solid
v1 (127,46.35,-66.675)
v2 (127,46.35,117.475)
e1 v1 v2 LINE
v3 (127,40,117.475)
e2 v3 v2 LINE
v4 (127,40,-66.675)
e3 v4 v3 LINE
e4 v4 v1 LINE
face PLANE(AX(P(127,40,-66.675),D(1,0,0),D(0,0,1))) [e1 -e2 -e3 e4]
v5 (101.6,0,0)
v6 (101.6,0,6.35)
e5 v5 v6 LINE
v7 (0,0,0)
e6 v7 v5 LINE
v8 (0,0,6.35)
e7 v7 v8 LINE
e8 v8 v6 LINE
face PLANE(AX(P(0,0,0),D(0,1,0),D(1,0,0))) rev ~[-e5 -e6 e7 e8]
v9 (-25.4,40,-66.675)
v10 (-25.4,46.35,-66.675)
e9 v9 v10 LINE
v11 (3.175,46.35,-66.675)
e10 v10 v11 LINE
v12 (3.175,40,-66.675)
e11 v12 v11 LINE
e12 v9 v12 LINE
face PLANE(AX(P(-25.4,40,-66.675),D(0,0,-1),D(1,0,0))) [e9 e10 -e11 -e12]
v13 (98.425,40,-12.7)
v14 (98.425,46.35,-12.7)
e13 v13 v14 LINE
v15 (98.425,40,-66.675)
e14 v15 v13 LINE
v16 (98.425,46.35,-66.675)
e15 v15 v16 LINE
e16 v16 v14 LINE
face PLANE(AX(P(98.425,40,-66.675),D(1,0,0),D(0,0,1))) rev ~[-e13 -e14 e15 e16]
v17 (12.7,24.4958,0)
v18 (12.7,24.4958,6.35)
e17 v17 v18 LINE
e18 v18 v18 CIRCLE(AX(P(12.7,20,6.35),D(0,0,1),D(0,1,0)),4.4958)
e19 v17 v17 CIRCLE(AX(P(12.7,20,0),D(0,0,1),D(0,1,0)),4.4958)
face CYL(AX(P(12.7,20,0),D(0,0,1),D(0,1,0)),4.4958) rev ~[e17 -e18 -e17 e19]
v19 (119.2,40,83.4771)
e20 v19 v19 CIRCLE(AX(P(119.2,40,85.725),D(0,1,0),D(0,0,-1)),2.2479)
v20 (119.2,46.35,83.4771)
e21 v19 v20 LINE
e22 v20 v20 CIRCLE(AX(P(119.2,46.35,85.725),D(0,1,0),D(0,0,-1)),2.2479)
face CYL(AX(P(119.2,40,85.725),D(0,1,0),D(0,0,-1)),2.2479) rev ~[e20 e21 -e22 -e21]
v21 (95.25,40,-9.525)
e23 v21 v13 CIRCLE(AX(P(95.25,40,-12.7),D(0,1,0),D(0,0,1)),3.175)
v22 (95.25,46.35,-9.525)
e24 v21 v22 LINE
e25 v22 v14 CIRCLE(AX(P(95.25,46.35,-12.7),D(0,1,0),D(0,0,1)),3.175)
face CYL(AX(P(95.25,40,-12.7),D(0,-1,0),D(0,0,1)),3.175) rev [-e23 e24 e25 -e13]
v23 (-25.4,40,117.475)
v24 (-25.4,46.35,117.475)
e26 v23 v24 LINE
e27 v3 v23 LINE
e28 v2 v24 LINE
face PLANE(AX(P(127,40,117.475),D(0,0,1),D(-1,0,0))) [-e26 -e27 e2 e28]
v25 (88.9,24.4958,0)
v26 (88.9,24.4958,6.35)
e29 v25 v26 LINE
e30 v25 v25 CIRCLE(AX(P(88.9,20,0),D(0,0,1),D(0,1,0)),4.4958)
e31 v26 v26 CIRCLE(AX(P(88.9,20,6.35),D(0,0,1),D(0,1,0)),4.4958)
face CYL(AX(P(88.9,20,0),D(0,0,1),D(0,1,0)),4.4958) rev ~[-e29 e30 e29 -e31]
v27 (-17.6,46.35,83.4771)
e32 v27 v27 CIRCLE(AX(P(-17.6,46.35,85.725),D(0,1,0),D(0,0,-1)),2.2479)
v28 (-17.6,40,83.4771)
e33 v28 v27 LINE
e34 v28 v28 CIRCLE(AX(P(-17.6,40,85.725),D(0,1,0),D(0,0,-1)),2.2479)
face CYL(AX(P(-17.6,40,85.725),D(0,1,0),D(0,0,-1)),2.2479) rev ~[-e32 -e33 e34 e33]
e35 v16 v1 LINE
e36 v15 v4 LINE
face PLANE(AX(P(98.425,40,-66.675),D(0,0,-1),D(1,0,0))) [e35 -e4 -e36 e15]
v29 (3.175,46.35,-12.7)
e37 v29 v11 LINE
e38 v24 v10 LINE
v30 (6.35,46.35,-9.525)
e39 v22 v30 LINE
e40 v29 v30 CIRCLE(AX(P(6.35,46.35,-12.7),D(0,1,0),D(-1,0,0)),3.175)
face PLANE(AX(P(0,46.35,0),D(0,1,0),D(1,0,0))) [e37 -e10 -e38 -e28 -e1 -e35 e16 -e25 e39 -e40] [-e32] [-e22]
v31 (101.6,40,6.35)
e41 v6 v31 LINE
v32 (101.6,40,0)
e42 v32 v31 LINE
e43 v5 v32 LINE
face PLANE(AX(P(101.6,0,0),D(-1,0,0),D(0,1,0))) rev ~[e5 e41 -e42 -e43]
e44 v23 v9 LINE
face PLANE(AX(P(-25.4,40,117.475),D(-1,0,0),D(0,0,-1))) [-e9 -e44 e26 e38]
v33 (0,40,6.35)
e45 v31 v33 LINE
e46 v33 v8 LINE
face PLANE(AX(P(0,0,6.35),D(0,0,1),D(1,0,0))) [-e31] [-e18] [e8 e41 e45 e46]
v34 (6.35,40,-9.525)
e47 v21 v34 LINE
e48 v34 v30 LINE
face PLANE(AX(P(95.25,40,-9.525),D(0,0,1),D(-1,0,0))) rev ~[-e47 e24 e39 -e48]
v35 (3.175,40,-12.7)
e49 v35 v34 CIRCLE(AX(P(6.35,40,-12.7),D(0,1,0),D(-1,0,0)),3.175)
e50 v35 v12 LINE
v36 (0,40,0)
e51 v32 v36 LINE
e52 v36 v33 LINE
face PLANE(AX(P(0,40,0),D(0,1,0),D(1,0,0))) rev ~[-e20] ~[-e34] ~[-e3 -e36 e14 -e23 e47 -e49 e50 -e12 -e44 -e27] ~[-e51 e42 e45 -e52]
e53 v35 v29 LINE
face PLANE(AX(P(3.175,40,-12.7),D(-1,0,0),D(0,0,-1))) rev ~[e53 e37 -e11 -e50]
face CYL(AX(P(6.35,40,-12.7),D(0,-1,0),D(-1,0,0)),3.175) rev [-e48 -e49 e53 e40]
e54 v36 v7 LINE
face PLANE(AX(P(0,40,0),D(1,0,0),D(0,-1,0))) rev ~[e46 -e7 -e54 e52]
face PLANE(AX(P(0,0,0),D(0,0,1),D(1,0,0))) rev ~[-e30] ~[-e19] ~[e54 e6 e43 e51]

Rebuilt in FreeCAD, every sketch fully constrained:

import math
import FreeCAD as App
import Part
import Sketcher

V = App.Vector
Q = App.Units.Quantity


def add_polygon(sketch, points):
    """Adds a closed chain of lines whose ends are joined by coincident constraints."""
    first, n = sketch.GeometryCount, len(points)
    for a, b in zip(points, points[1:] + points[:1]):
        sketch.addGeometry(Part.LineSegment(App.Vector(*a, 0), App.Vector(*b, 0)), False)
    for i in range(n):
        sketch.addConstraint(Sketcher.Constraint("Coincident", first + i, 2, first + (i + 1) % n, 1))

doc = App.newDocument("Part")
body = doc.addObject("PartDesign::Body", "Body")

# Sketch on XY plane
sketch1 = body.newObject("Sketcher::SketchObject", "Sketch")
sketch1.AttachmentSupport = (doc.getObject("XY_Plane"), [""])
sketch1.MapMode = "FlatFace"
add_polygon(sketch1, [(0, 40), (0, 0), (101.6, 0), (101.6, 40)])  # lines 0-3
sketch1.addConstraint(Sketcher.Constraint("Vertical", 0))
sketch1.addConstraint(Sketcher.Constraint("Horizontal", 1))
sketch1.addConstraint(Sketcher.Constraint("Vertical", 2))
sketch1.addConstraint(Sketcher.Constraint("Horizontal", 3))
sketch1.addConstraint(Sketcher.Constraint("Coincident", 0, 2, -1, 1))
sketch1.addConstraint(Sketcher.Constraint("DistanceX", 1, 1, 1, 2, Q("4 in")))
sketch1.addConstraint(Sketcher.Constraint("DistanceY", 0, 2, 0, 1, Q("1.5748 in")))
pad1 = body.newObject("PartDesign::Pad", "Pad")
pad1.Profile = sketch1
pad1.Length = Q("0.25 in")

# Sketch on XZ plane
sketch2 = body.newObject("Sketcher::SketchObject", "Sketch001")
sketch2.AttachmentSupport = (doc.getObject("XZ_Plane"), [""])
sketch2.MapMode = "FlatFace"
sketch2.AttachmentOffset = App.Placement(V(0, 0, -1.5748031 * 25.4), App.Rotation())
sketch2.addGeometry(Part.LineSegment(V(3.175, -66.675, 0), V(-25.4, -66.675, 0)), False)
sketch2.addGeometry(Part.LineSegment(V(-25.4, -66.675, 0), V(-25.4, 117.475, 0)), False)
sketch2.addGeometry(Part.LineSegment(V(-25.4, 117.475, 0), V(127, 117.475, 0)), False)
sketch2.addGeometry(Part.LineSegment(V(127, 117.475, 0), V(127, -66.675, 0)), False)
sketch2.addGeometry(Part.LineSegment(V(127, -66.675, 0), V(98.425, -66.675, 0)), False)
sketch2.addGeometry(Part.LineSegment(V(98.425, -66.675, 0), V(98.425, -12.7, 0)), False)
sketch2.addGeometry(Part.ArcOfCircle(Part.Circle(V(95.25, -12.7, 0), V(0, 0, 1), 3.175), math.radians(0), math.radians(90)), False)
sketch2.addGeometry(Part.LineSegment(V(95.25, -9.525, 0), V(6.35, -9.525, 0)), False)
sketch2.addGeometry(Part.ArcOfCircle(Part.Circle(V(6.35, -12.7, 0), V(0, 0, 1), 3.175), math.radians(90), math.radians(180)), False)
sketch2.addGeometry(Part.LineSegment(V(3.175, -12.7, 0), V(3.175, -66.675, 0)), False)
sketch2.addConstraint(Sketcher.Constraint("Coincident", 0, 2, 1, 1))
sketch2.addConstraint(Sketcher.Constraint("Coincident", 1, 2, 2, 1))
sketch2.addConstraint(Sketcher.Constraint("Coincident", 2, 2, 3, 1))
sketch2.addConstraint(Sketcher.Constraint("Coincident", 3, 2, 4, 1))
sketch2.addConstraint(Sketcher.Constraint("Coincident", 4, 2, 5, 1))
sketch2.addConstraint(Sketcher.Constraint("Tangent", 5, 2, 6, 1))
sketch2.addConstraint(Sketcher.Constraint("Tangent", 6, 2, 7, 1))
sketch2.addConstraint(Sketcher.Constraint("Tangent", 7, 2, 8, 1))
sketch2.addConstraint(Sketcher.Constraint("Tangent", 8, 2, 9, 1))
sketch2.addConstraint(Sketcher.Constraint("Coincident", 9, 2, 0, 1))
sketch2.addConstraint(Sketcher.Constraint("Horizontal", 0))
sketch2.addConstraint(Sketcher.Constraint("Vertical", 1))
sketch2.addConstraint(Sketcher.Constraint("Horizontal", 2))
sketch2.addConstraint(Sketcher.Constraint("Vertical", 3))
sketch2.addConstraint(Sketcher.Constraint("Horizontal", 4))
sketch2.addConstraint(Sketcher.Constraint("Vertical", 5))
sketch2.addConstraint(Sketcher.Constraint("Horizontal", 7))
sketch2.addConstraint(Sketcher.Constraint("Vertical", 9))
sketch2.addConstraint(Sketcher.Constraint("Equal", 6, 8))
sketch2.addConstraint(Sketcher.Constraint("Horizontal", 0, 2, 3, 2))
sketch2.addConstraint(Sketcher.Constraint("Equal", 0, 4))
sketch2.addConstraint(Sketcher.Constraint("DistanceX", 2, 1, 2, 2, Q("6 in")))
sketch2.addConstraint(Sketcher.Constraint("Radius", 6, Q("0.125 in")))
sketch2.addConstraint(Sketcher.Constraint("DistanceY", 1, 1, 1, 2, Q("7.25 in")))
sketch2.addConstraint(Sketcher.Constraint("DistanceX", -1, 1, 6, 3, Q("3.75 in")))
sketch2.addConstraint(Sketcher.Constraint("DistanceY", 4, 2, 6, 2, Q("2.25 in")))
sketch2.addConstraint(Sketcher.Constraint("DistanceX", 9, 2, 4, 2, Q("3.75 in")))
sketch2.addConstraint(Sketcher.Constraint("DistanceY", 6, 2, -1, 1, Q("0.375 in")))
pad2 = body.newObject("PartDesign::Pad", "Pad001")
pad2.Profile = sketch2
pad2.Length = Q("0.25 in")
pad2.Reversed = True

# Sketch on XY plane
sketch3 = body.newObject("Sketcher::SketchObject", "Sketch002")
sketch3.AttachmentSupport = (doc.getObject("XY_Plane"), [""])
sketch3.MapMode = "FlatFace"
sketch3.addGeometry(Part.Circle(V(88.9, 20, 0), V(0, 0, 1), 4.4958), False)
sketch3.addGeometry(Part.Circle(V(12.7, 20, 0), V(0, 0, 1), 4.4958), False)
sketch3.addConstraint(Sketcher.Constraint("Equal", 0, 1))
sketch3.addConstraint(Sketcher.Constraint("Horizontal", 0, 3, 1, 3))
sketch3.addConstraint(Sketcher.Constraint("Diameter", 0, Q("0.354 in")))
sketch3.addConstraint(Sketcher.Constraint("DistanceX", 1, 3, 0, 3, Q("3 in")))
sketch3.addConstraint(Sketcher.Constraint("DistanceX", -1, 1, 0, 3, Q("3.5 in")))
sketch3.addConstraint(Sketcher.Constraint("DistanceY", -1, 1, 0, 3, Q("0.7874 in")))
doc.recompute()
hole = body.newObject("PartDesign::Hole", "Hole")
hole.Profile = sketch3
hole.ThreadType = "None"
hole.Diameter = Q("0.354 in")
hole.DepthType = "ThroughAll"
hole.Reversed = True

# Sketch on XZ plane
sketch4 = body.newObject("Sketcher::SketchObject", "Sketch003")
sketch4.AttachmentSupport = (doc.getObject("XZ_Plane"), [""])
sketch4.MapMode = "FlatFace"
sketch4.AttachmentOffset = App.Placement(V(0, 0, -1.5748031 * 25.4), App.Rotation())
sketch4.addGeometry(Part.Circle(V(-17.6, 85.725, 0), V(0, 0, 1), 2.2479), False)
sketch4.addGeometry(Part.Circle(V(119.2, 85.725, 0), V(0, 0, 1), 2.2479), False)
sketch4.addConstraint(Sketcher.Constraint("Equal", 0, 1))
sketch4.addConstraint(Sketcher.Constraint("Horizontal", 0, 3, 1, 3))
sketch4.addConstraint(Sketcher.Constraint("Diameter", 0, Q("0.177 in")))
sketch4.addConstraint(Sketcher.Constraint("DistanceY", -1, 1, 0, 3, Q("3.375 in")))
sketch4.addConstraint(Sketcher.Constraint("DistanceX", 0, 3, -1, 1, Q("17.6 mm")))
sketch4.addConstraint(Sketcher.Constraint("DistanceX", -1, 1, 1, 3, Q("119.2 mm")))
doc.recompute()
hole2 = body.newObject("PartDesign::Hole", "Hole001")
hole2.Profile = sketch4
hole2.ThreadType = "None"
hole2.Diameter = Q("0.177 in")
hole2.DepthType = "ThroughAll"

doc.recompute()
